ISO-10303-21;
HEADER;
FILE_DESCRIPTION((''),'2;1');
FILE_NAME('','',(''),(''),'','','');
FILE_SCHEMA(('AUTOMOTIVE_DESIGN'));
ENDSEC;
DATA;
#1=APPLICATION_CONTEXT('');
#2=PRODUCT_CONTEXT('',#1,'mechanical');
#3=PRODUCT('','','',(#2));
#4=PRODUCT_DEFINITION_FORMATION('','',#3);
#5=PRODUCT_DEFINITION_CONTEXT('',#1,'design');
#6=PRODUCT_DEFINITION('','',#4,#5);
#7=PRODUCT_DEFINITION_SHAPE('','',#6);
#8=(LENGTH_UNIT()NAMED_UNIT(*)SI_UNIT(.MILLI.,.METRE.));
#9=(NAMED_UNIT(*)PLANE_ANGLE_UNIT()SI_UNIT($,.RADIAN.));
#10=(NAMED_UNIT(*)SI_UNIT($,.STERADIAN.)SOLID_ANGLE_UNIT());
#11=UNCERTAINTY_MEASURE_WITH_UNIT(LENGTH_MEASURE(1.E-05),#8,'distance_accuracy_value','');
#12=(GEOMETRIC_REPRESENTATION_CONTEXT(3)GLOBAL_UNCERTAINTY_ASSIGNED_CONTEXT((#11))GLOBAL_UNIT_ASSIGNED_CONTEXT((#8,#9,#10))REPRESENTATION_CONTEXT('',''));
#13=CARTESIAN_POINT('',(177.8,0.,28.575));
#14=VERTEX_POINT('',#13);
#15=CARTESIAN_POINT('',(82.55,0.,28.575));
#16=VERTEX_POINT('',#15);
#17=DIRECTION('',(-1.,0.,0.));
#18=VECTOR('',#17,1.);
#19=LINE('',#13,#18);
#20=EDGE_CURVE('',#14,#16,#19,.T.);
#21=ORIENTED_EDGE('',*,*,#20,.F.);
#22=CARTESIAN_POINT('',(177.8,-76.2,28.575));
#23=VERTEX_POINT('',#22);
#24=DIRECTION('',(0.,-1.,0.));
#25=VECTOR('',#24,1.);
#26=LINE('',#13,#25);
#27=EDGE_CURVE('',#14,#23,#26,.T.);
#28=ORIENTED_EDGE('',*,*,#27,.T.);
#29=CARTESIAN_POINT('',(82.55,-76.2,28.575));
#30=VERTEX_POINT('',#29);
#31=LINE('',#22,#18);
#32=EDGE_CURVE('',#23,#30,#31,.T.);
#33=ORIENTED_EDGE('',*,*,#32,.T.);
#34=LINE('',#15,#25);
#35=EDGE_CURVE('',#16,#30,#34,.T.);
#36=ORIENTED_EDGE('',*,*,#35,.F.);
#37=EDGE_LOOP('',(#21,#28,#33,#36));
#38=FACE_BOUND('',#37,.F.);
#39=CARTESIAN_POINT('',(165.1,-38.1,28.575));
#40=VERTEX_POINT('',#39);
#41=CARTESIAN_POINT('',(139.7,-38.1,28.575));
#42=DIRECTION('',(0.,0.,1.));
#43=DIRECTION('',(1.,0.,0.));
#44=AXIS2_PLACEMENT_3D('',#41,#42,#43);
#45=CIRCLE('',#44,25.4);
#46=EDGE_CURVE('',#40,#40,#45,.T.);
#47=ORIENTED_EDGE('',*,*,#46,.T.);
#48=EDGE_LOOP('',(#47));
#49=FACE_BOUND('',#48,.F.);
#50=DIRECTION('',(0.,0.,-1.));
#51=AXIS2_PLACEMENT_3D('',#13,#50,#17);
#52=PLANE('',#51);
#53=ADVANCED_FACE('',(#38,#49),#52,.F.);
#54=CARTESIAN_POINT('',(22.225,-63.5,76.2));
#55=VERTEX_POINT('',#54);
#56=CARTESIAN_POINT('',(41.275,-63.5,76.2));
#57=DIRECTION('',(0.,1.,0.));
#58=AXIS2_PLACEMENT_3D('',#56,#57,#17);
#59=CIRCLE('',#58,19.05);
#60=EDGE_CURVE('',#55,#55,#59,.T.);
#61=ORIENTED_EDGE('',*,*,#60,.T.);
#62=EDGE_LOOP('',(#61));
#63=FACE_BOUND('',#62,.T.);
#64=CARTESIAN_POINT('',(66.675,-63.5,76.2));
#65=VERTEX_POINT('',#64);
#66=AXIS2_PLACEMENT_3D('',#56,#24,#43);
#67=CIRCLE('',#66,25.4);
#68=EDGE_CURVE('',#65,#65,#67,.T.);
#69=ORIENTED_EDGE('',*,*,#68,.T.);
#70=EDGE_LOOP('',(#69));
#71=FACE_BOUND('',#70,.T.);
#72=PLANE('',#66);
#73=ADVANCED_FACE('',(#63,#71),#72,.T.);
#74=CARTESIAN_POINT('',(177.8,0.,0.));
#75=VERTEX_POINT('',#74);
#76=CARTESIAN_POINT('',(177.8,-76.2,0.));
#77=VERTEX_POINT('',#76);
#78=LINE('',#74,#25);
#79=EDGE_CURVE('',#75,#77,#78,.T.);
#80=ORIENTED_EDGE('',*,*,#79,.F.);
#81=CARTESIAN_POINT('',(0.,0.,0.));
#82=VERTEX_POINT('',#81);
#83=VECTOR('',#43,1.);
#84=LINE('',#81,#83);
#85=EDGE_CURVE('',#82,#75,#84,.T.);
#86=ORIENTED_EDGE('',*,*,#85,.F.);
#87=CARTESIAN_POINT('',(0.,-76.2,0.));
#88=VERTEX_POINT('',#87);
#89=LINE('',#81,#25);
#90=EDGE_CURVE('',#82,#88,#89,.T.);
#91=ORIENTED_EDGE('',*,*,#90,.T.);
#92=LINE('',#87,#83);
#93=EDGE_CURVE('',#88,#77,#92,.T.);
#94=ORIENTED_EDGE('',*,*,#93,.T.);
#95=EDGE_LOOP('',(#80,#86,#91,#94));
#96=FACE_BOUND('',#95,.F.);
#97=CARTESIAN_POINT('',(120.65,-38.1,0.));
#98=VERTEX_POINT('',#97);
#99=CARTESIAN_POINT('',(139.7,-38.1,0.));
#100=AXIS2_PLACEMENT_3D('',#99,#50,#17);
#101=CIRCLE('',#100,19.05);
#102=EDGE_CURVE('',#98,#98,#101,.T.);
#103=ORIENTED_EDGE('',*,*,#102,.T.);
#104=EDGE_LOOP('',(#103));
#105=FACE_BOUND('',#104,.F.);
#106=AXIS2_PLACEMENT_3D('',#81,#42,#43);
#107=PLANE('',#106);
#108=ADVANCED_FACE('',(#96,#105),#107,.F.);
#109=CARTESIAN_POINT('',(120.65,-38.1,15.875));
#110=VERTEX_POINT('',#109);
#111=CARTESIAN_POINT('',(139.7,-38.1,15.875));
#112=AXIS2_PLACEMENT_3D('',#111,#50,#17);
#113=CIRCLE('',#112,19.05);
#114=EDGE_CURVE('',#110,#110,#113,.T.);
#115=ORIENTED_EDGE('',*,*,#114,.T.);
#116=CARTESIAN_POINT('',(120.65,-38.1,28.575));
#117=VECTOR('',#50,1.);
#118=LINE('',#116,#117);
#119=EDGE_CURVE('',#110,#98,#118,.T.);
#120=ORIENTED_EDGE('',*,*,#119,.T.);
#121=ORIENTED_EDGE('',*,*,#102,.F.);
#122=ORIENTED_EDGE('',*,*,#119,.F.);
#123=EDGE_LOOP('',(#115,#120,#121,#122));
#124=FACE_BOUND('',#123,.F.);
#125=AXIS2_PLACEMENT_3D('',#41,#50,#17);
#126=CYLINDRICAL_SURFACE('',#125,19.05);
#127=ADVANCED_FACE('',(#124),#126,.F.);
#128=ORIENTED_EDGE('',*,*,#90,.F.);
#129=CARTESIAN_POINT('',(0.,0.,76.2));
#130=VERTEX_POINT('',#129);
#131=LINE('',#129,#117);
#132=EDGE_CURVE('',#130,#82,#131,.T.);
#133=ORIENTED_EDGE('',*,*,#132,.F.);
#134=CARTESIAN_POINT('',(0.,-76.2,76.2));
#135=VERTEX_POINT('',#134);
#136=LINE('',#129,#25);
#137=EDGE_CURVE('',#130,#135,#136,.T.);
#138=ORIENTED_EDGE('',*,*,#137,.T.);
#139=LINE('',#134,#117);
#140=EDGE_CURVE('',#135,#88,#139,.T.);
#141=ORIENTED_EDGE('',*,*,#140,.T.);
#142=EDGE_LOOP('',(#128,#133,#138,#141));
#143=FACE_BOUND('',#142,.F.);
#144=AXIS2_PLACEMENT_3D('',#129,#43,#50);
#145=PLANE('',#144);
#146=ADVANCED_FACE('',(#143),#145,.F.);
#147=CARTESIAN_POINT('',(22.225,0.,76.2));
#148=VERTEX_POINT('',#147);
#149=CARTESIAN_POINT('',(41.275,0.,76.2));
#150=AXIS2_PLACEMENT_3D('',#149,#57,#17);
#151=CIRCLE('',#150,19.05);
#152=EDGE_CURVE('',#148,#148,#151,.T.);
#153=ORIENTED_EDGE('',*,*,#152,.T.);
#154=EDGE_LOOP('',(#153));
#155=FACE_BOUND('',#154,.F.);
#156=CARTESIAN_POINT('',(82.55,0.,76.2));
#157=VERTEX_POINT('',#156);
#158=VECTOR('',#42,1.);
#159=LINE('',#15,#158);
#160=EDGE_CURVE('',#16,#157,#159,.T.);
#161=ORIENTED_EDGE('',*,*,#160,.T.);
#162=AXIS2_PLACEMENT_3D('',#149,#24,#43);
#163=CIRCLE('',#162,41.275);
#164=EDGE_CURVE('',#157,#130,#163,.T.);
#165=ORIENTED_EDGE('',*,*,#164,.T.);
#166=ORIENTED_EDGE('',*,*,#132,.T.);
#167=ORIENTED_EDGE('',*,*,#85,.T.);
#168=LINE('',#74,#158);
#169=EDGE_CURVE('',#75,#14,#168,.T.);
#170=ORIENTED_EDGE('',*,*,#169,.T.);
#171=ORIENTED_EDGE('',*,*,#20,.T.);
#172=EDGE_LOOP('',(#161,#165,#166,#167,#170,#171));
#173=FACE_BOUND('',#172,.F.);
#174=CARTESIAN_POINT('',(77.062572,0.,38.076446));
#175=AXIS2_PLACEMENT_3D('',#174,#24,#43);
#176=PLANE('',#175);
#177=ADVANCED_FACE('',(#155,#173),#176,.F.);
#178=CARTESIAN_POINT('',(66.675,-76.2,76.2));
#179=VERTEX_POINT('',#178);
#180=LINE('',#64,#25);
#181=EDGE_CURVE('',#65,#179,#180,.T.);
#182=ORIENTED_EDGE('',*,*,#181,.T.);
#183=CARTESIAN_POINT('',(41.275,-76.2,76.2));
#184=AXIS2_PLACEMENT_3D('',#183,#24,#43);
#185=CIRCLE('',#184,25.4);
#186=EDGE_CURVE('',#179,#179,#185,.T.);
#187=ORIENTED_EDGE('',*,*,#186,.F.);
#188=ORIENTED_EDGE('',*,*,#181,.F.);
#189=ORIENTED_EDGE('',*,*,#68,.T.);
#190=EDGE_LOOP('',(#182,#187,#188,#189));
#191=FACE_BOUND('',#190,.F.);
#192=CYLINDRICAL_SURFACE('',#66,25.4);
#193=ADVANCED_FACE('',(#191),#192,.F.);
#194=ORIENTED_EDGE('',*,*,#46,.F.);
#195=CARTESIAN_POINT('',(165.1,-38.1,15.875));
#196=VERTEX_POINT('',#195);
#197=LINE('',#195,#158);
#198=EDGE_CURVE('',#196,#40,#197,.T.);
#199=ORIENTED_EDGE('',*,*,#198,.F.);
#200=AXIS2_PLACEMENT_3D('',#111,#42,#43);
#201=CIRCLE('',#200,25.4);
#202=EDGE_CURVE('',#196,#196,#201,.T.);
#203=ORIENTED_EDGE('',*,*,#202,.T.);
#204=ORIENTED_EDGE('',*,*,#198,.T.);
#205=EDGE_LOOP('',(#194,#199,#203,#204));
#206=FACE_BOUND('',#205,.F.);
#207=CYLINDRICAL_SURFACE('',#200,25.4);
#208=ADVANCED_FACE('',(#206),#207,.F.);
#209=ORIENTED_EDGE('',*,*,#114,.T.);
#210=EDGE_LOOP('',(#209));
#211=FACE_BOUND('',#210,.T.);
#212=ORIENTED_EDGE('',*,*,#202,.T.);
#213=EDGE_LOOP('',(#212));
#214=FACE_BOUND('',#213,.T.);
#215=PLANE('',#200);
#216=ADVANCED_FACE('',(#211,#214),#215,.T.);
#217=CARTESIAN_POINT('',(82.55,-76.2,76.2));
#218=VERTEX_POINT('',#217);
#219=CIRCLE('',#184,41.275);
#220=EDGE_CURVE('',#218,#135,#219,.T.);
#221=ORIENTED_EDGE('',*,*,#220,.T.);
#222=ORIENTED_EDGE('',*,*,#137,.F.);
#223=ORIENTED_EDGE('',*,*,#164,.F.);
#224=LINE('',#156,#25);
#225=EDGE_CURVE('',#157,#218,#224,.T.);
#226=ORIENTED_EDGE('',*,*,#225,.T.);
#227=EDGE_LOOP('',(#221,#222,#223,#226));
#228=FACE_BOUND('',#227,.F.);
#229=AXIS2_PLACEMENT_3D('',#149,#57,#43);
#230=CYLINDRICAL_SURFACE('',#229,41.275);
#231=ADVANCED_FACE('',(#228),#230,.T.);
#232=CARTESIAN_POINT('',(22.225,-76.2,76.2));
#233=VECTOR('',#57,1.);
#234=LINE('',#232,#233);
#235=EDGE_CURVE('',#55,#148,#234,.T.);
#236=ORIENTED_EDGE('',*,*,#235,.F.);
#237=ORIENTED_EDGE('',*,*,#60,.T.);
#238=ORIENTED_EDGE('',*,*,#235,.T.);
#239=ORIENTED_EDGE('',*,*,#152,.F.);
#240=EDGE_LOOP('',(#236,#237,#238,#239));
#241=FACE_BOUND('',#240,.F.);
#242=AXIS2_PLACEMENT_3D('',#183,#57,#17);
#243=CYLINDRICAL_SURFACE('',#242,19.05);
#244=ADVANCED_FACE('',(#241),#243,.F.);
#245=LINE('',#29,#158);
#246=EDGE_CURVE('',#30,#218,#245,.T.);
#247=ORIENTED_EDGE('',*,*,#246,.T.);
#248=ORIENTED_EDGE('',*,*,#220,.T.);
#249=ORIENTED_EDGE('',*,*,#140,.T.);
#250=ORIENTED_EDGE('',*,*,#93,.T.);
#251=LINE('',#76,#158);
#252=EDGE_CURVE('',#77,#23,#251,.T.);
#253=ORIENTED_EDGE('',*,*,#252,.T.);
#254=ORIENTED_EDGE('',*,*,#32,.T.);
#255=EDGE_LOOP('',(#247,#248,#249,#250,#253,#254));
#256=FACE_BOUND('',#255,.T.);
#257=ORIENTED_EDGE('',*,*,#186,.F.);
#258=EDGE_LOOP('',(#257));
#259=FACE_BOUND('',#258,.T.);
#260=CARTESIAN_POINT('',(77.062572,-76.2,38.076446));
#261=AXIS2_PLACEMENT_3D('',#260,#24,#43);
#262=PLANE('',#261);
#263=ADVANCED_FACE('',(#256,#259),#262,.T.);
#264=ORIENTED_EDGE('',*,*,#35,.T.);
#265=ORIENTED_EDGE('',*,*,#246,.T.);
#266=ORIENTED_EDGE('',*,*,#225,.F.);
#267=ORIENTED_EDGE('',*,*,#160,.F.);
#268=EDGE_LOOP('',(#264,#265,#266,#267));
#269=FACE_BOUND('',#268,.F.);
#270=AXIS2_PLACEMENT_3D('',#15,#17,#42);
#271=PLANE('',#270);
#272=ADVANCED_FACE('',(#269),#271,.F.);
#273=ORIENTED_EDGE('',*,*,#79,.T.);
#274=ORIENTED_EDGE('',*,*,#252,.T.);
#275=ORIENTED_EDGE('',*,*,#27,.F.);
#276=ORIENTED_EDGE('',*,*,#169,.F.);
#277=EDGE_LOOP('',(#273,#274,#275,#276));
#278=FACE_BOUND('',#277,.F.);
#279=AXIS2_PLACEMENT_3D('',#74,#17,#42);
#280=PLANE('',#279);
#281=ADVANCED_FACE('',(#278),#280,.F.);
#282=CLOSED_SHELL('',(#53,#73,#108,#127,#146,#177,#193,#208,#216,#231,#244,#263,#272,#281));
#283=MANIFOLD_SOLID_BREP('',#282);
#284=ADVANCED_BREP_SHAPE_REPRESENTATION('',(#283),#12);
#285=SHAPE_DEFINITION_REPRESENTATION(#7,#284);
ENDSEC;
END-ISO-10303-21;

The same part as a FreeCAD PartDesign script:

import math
import FreeCAD as App
import Part
import Sketcher

V = App.Vector
Q = App.Units.Quantity

doc = App.newDocument("Part")
body = doc.addObject("PartDesign::Body", "Body")

# Sketch on XZ plane
sketch1 = body.newObject("Sketcher::SketchObject", "Sketch")
sketch1.AttachmentSupport = (doc.getObject("XZ_Plane"), [""])
sketch1.MapMode = "FlatFace"
sketch1.addGeometry([
    Part.LineSegment(V(0, 76, 0), V(0, 0, 0)),  # 0
    Part.LineSegment(V(0, 0, 0), V(178, 0, 0)),  # 1
    Part.LineSegment(V(178, 0, 0), V(178, 29, 0)),  # 2
    Part.LineSegment(V(178, 29, 0), V(83, 29, 0)),  # 3
    Part.LineSegment(V(83, 29, 0), V(83, 76, 0)),  # 4
    Part.ArcOfCircle(Part.Circle(V(41, 76, 0), V(0, 0, 1), 41), math.radians(0), math.radians(180)),  # 5
], False)
sketch1.addConstraint([
    Sketcher.Constraint("Coincident", 0, 2, 1, 1),
    Sketcher.Constraint("Coincident", 1, 2, 2, 1),
    Sketcher.Constraint("Coincident", 2, 2, 3, 1),
    Sketcher.Constraint("Coincident", 3, 2, 4, 1),
    Sketcher.Constraint("Tangent", 4, 2, 5, 1),
    Sketcher.Constraint("Tangent", 5, 2, 0, 1),
    Sketcher.Constraint("Vertical", 0),
    Sketcher.Constraint("Horizontal", 1),
    Sketcher.Constraint("Vertical", 2),
    Sketcher.Constraint("Horizontal", 3),
    Sketcher.Constraint("Vertical", 4),
    Sketcher.Constraint("Coincident", 0, 2, -1, 1),
    Sketcher.Constraint("DistanceX", 1, 1, 1, 2, Q("7 in")),
    Sketcher.Constraint("DistanceY", 0, 2, 0, 1, Q("3 in")),
    Sketcher.Constraint("Radius", 5, Q("1.625 in")),
    Sketcher.Constraint("DistanceY", 2, 1, 2, 2, Q("1.125 in")),
])
pad1 = body.newObject("PartDesign::Pad", "Pad")
pad1.Profile = sketch1
pad1.Length = Q("3 in")

# Sketch on XZ plane
sketch2 = body.newObject("Sketcher::SketchObject", "Sketch001")
sketch2.AttachmentSupport = (doc.getObject("XZ_Plane"), [""])
sketch2.MapMode = "FlatFace"
sketch2.AttachmentOffset = App.Placement(V(0, 0, 3 * 25.4), App.Rotation())
sketch2.addGeometry(Part.Circle(V(41, 76, 0), V(0, 0, 1), 19), False)
sketch2.addConstraint([
    Sketcher.Constraint("Diameter", 0, Q("1.5 in")),
    Sketcher.Constraint("DistanceY", -1, 1, 0, 3, Q("3 in")),
    Sketcher.Constraint("DistanceX", -1, 1, 0, 3, Q("1.625 in")),
])
doc.recompute()
hole = body.newObject("PartDesign::Hole", "Hole")
hole.Profile = sketch2
hole.ThreadType = "None"
hole.Diameter = Q("1.5 in")
hole.DepthType = "ThroughAll"
hole.HoleCutType = "Counterbore"
hole.HoleCutDiameter = Q("2 in")
hole.HoleCutDepth = Q("0.5 in")

# Sketch on XY plane
sketch3 = body.newObject("Sketcher::SketchObject", "Sketch002")
sketch3.AttachmentSupport = (doc.getObject("XY_Plane"), [""])
sketch3.MapMode = "FlatFace"
sketch3.AttachmentOffset = App.Placement(V(0, 0, 1.125 * 25.4), App.Rotation())
sketch3.addGeometry(Part.Circle(V(140, -38, 0), V(0, 0, 1), 19), False)
sketch3.addConstraint([
    Sketcher.Constraint("Diameter", 0, Q("1.5 in")),
    Sketcher.Constraint("DistanceX", -1, 1, 0, 3, Q("5.5 in")),
    Sketcher.Constraint("DistanceY", 0, 3, -1, 1, Q("1.5 in")),
])
doc.recompute()
hole2 = body.newObject("PartDesign::Hole", "Hole001")
hole2.Profile = sketch3
hole2.ThreadType = "None"
hole2.Diameter = Q("1.5 in")
hole2.DepthType = "ThroughAll"
hole2.HoleCutType = "Counterbore"
hole2.HoleCutDiameter = Q("2 in")
hole2.HoleCutDepth = Q("0.5 in")

doc.recompute()
